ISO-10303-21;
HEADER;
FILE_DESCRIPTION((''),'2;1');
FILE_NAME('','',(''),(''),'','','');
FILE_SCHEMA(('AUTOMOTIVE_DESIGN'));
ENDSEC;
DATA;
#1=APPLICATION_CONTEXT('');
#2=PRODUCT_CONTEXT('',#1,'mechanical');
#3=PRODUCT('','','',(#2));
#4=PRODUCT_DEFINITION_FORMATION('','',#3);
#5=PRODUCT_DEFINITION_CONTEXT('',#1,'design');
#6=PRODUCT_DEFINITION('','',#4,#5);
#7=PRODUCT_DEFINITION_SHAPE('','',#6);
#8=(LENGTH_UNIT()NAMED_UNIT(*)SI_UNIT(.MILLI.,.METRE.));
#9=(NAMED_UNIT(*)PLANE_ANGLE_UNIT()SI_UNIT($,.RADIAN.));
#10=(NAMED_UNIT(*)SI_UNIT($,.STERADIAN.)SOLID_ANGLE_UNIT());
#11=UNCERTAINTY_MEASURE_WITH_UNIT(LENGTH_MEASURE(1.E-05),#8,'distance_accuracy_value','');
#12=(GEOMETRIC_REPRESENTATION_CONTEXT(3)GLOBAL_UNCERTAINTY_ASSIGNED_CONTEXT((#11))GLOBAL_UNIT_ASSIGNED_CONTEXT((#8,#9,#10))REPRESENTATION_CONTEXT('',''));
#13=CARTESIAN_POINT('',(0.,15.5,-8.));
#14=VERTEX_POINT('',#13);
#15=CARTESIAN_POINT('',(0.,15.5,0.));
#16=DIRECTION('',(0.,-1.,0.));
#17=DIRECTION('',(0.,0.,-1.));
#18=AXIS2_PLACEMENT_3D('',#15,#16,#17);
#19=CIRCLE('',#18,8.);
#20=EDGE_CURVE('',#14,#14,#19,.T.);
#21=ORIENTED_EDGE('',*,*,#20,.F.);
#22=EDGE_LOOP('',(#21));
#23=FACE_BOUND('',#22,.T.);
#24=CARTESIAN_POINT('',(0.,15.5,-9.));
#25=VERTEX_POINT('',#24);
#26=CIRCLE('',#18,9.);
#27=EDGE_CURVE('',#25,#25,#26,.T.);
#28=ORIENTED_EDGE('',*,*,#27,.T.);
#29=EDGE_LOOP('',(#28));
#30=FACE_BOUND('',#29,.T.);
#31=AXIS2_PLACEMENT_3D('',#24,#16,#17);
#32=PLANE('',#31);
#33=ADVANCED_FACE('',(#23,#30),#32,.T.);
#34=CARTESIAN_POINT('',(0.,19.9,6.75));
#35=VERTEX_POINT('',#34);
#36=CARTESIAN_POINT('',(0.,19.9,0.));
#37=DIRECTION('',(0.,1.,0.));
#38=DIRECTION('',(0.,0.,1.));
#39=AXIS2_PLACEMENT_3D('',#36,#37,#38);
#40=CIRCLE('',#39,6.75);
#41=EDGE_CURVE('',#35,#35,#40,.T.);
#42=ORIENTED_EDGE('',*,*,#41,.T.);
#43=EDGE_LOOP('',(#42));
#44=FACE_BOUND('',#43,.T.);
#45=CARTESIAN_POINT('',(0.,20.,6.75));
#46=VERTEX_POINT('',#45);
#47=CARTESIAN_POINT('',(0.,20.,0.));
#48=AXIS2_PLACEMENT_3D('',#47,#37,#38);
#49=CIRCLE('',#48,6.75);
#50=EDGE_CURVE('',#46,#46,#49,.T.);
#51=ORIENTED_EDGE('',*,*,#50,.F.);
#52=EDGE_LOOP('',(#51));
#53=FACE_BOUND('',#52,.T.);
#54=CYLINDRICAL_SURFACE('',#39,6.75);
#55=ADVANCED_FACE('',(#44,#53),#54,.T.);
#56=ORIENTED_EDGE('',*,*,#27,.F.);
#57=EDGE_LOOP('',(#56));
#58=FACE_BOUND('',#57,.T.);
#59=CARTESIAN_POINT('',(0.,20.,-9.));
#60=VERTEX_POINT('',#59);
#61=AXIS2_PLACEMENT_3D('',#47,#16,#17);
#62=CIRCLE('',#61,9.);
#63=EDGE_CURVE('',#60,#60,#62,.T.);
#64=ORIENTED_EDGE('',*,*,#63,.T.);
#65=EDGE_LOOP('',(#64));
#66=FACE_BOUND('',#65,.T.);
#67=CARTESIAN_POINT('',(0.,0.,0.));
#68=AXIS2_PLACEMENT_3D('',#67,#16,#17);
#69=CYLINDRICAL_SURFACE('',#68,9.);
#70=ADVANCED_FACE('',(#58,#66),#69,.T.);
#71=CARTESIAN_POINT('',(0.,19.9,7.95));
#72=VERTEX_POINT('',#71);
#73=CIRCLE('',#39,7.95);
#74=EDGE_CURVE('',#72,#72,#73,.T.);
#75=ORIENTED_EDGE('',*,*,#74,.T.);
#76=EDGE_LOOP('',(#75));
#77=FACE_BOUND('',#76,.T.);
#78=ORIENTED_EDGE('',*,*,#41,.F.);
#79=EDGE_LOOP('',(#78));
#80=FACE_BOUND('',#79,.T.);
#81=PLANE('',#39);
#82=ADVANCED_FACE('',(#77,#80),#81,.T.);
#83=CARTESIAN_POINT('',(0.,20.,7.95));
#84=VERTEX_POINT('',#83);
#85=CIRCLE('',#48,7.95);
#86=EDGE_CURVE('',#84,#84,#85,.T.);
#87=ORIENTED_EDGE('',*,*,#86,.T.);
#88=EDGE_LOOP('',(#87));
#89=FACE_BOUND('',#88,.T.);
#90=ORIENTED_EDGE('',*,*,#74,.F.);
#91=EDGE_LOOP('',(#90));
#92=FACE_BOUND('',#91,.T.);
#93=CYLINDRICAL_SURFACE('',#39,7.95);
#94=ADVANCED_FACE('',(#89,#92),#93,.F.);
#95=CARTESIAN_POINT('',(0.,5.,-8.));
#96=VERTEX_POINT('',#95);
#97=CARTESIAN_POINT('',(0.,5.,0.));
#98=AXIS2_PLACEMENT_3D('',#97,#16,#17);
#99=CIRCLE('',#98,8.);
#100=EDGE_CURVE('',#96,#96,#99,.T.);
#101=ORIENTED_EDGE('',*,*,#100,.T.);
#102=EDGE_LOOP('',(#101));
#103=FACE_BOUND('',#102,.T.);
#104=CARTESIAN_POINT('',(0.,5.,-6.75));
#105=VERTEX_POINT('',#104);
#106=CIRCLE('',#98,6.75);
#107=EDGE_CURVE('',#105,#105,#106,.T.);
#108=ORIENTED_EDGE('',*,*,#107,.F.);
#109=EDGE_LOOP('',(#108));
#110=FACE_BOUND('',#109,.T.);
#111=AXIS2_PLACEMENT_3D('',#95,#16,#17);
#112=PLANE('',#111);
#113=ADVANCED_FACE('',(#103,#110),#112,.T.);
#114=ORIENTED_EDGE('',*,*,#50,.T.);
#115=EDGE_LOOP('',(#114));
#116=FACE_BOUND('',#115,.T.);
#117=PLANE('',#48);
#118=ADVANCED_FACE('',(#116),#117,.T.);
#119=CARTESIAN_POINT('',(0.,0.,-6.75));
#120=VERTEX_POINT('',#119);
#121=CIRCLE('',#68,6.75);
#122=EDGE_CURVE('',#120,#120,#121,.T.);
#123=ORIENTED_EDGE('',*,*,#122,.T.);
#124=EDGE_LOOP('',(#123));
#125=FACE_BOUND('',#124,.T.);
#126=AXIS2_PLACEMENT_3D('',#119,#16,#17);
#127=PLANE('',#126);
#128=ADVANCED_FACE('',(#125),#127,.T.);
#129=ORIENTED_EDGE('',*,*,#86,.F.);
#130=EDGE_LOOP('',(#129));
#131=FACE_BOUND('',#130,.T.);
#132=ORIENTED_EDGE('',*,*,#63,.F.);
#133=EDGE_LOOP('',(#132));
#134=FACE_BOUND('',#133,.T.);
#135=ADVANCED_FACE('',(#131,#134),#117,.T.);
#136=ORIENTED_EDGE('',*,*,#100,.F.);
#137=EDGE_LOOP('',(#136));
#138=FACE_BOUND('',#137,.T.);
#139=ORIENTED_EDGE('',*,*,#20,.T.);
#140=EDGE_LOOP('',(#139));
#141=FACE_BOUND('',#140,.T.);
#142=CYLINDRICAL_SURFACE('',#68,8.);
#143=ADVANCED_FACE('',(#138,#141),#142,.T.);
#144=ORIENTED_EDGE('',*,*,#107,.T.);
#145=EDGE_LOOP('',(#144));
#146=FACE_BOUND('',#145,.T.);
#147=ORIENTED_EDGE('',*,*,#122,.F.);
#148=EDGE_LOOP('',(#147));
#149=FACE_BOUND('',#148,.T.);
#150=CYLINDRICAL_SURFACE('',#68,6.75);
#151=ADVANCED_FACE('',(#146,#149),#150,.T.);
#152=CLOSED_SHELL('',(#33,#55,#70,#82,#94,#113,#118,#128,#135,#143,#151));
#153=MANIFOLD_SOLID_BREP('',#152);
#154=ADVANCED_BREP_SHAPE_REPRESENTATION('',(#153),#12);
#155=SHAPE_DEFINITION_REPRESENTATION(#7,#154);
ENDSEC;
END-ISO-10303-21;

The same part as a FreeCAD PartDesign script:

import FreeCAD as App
import Part
import Sketcher
Q = App.Units.Quantity

doc = App.newDocument("Part")
params = doc.addObject("Spreadsheet::Sheet", "Params")
for row, (alias, value) in enumerate([
    ("sketch1_width", "20 mm"),
    ("sketch1_width2", "5 mm"),
    ("sketch1_height", "9 mm"),
    ("sketch1_height2", "1 mm"),
    ("sketch1_width3", "10.5 mm"),
    ("revolution_angle", "360 deg"),
    ("sketch2_diameter", "15.9 mm"),
    ("sketch2_diameter2", "13.5 mm"),
    ("pocket1_length", "0.1 mm"),
], start=1):
    params.set(f"A{row}", alias)
    params.set(f"B{row}", "=" + value)
    params.setAlias(f"B{row}", alias)

body = doc.addObject("PartDesign::Body", "Body")

# Sketch on YZ plane
sketch1 = doc.addObject("Sketcher::SketchObject", "Sketch")
body.addObject(sketch1)
sketch1.AttachmentSupport = (doc.YZ_Plane, [""])
sketch1.MapMode = "FlatFace"
sketch1.addGeometry([
    Part.LineSegment(App.Vector(20, -9, 0), App.Vector(20, 0, 0)),  # 0
    Part.LineSegment(App.Vector(20, 0, 0), App.Vector(0, 0, 0)),  # 1
    Part.LineSegment(App.Vector(0, 0, 0), App.Vector(0, -6.8, 0)),  # 2
    Part.LineSegment(App.Vector(0, -6.8, 0), App.Vector(5, -6.8, 0)),  # 3
    Part.LineSegment(App.Vector(5, -6.8, 0), App.Vector(5, -8, 0)),  # 4
    Part.LineSegment(App.Vector(5, -8, 0), App.Vector(15.5, -8, 0)),  # 5
    Part.LineSegment(App.Vector(15.5, -8, 0), App.Vector(15.5, -9, 0)),  # 6
    Part.LineSegment(App.Vector(15.5, -9, 0), App.Vector(20, -9, 0)),  # 7
], False)
sketch1.addConstraint([
    Sketcher.Constraint("Coincident", 0, 2, 1, 1),
    Sketcher.Constraint("Coincident", 1, 2, 2, 1),
    Sketcher.Constraint("Coincident", 2, 2, 3, 1),
    Sketcher.Constraint("Coincident", 3, 2, 4, 1),
    Sketcher.Constraint("Coincident", 4, 2, 5, 1),
    Sketcher.Constraint("Coincident", 5, 2, 6, 1),
    Sketcher.Constraint("Coincident", 6, 2, 7, 1),
    Sketcher.Constraint("Coincident", 7, 2, 0, 1),
    Sketcher.Constraint("Vertical", 0),
    Sketcher.Constraint("Horizontal", 1),
    Sketcher.Constraint("Vertical", 2),
    Sketcher.Constraint("Horizontal", 3),
    Sketcher.Constraint("Vertical", 4),
    Sketcher.Constraint("Horizontal", 5),
    Sketcher.Constraint("Vertical", 6),
    Sketcher.Constraint("Horizontal", 7),
    Sketcher.Constraint("Coincident", 1, 2, -1, 1),
    Sketcher.Constraint("DistanceX", 1, 2, 1, 1, Q("20 mm")),
    Sketcher.Constraint("DistanceX", 3, 1, 3, 2, Q("5 mm")),
    Sketcher.Constraint("DistanceY", 0, 1, 0, 2, Q("9 mm")),
    Sketcher.Constraint("DistanceY", 6, 2, 6, 1, Q("1 mm")),
    Sketcher.Constraint("DistanceX", 5, 1, 5, 2, Q("10.5 mm")),
    Sketcher.Constraint("DistanceY", 2, 2, 2, 1, Q("6.75 mm")),
])
sketch1.setExpression("Constraints[17]", "Params.sketch1_width")
sketch1.setExpression("Constraints[18]", "Params.sketch1_width2")
sketch1.setExpression("Constraints[19]", "Params.sketch1_height")
sketch1.setExpression("Constraints[20]", "Params.sketch1_height2")
sketch1.setExpression("Constraints[21]", "Params.sketch1_width3")
revolution = doc.addObject("PartDesign::Revolution", "Revolution")
body.addObject(revolution)
revolution.Profile = sketch1
revolution.ReferenceAxis = (sketch1, ["H_Axis"])
revolution.setExpression("Angle", "Params.revolution_angle")

# Sketch on XZ plane
sketch2 = doc.addObject("Sketcher::SketchObject", "Sketch001")
body.addObject(sketch2)
sketch2.AttachmentSupport = (doc.XZ_Plane, [""])
sketch2.MapMode = "FlatFace"
sketch2.AttachmentOffset = App.Placement(App.Vector(0, 0, -19.9), App.Rotation())
sketch2.addGeometry([
    Part.Circle(App.Vector(0, 0, 0), App.Vector(0, 0, 1), 8),
    Part.Circle(App.Vector(0, 0, 0), App.Vector(0, 0, 1), 7),
], False)
sketch2.addConstraint([
    Sketcher.Constraint("Coincident", 0, 3, -1, 1),
    Sketcher.Constraint("Coincident", 1, 3, -1, 1),
    Sketcher.Constraint("Diameter", 0, Q("15.9 mm")),
    Sketcher.Constraint("Diameter", 1, Q("13.5 mm")),
])
sketch2.setExpression("Constraints[2]", "Params.sketch2_diameter")
sketch2.setExpression("Constraints[3]", "Params.sketch2_diameter2")
pocket1 = doc.addObject("PartDesign::Pocket", "Pocket")
body.addObject(pocket1)
pocket1.Profile = sketch2
pocket1.setExpression("Length", "Params.pocket1_length")

doc.recompute()
